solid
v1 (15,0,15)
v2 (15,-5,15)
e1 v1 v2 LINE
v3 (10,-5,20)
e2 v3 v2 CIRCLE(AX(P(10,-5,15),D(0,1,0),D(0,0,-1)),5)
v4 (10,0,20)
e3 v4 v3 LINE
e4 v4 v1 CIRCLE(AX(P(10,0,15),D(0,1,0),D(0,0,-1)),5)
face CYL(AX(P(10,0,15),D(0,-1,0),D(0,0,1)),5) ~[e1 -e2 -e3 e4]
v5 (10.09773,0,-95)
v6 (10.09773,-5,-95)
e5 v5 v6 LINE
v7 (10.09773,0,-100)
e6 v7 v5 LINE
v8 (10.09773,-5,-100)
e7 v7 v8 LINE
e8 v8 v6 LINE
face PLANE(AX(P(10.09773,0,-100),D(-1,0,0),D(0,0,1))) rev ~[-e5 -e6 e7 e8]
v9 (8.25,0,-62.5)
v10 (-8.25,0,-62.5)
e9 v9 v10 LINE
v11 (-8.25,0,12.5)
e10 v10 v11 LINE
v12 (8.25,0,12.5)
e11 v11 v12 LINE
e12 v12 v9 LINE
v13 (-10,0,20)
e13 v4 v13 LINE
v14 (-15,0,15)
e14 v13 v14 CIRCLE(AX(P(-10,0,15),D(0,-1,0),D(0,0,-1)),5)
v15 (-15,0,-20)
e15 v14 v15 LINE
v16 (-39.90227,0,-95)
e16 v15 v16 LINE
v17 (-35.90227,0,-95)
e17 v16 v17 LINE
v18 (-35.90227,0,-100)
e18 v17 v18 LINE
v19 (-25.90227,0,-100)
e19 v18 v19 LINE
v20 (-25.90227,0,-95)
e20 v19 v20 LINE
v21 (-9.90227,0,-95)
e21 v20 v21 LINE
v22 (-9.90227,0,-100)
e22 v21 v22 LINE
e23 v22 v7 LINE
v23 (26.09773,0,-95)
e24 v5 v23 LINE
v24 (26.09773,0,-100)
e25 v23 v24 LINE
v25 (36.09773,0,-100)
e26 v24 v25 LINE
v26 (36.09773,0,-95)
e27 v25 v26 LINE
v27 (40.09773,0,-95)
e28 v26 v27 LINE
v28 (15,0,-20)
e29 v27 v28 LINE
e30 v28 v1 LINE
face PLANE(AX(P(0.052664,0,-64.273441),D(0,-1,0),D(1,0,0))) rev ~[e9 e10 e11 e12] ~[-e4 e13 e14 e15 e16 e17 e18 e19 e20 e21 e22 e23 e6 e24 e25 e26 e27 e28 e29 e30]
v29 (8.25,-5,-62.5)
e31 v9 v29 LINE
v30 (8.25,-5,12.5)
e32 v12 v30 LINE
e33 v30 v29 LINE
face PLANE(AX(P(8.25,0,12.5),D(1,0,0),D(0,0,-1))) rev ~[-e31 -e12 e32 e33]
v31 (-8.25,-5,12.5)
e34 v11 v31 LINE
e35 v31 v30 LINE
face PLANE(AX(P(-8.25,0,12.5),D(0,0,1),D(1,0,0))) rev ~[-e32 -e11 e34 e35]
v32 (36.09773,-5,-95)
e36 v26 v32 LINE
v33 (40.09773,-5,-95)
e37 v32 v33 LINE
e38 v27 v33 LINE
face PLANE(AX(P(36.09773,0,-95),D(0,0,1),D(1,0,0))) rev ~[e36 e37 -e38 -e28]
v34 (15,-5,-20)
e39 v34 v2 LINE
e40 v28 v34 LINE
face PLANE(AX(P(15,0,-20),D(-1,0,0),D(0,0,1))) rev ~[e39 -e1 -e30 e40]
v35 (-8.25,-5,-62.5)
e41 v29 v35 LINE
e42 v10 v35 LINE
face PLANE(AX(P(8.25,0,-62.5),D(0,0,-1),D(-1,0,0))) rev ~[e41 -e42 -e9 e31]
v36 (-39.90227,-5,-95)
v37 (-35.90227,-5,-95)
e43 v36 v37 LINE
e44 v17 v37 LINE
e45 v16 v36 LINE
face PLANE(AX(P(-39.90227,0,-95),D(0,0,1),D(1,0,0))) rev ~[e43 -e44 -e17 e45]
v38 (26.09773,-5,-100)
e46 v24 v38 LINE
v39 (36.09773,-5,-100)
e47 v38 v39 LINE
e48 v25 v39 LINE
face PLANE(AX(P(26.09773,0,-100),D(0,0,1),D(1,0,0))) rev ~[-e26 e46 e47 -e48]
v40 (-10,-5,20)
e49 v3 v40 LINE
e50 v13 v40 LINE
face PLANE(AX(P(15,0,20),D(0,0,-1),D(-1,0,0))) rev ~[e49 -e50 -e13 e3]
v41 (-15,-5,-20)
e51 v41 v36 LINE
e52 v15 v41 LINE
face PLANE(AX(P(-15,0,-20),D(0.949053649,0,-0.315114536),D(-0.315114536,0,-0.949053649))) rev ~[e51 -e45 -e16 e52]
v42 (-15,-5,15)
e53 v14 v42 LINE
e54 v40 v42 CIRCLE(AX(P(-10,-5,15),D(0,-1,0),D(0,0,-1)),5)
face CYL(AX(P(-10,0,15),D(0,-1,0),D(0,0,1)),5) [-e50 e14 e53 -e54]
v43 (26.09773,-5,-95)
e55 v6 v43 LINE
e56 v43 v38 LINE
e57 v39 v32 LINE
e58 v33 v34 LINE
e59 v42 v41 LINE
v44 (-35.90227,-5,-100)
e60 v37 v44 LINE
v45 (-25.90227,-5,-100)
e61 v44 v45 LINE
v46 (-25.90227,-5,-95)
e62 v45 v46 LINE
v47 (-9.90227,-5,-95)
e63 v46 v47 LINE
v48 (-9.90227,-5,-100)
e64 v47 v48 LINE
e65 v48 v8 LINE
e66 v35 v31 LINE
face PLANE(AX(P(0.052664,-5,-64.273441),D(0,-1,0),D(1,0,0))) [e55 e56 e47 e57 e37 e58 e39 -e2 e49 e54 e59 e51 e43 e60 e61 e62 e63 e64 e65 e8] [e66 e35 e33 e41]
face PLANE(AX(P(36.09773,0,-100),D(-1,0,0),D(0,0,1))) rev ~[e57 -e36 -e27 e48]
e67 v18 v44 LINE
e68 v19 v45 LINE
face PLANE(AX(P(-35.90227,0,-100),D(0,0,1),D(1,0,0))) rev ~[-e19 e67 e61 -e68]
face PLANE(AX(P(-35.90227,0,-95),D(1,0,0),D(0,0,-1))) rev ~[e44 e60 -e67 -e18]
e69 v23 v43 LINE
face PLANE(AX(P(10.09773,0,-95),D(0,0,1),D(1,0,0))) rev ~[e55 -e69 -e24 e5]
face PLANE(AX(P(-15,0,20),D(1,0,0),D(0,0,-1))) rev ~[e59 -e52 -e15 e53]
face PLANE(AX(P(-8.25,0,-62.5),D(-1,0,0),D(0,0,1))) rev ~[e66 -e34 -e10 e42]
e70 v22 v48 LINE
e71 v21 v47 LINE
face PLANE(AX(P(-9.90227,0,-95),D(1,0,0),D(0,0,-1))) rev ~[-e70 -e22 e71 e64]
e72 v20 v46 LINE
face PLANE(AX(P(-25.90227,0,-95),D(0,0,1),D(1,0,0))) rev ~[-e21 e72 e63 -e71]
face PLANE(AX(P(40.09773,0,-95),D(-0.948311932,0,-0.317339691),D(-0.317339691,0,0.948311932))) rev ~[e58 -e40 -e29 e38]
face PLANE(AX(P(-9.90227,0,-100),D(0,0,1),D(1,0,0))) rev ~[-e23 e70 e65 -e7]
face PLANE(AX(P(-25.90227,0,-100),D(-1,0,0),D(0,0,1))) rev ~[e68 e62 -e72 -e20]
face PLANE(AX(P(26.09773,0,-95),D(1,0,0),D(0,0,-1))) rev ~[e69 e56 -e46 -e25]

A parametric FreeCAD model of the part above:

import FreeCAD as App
import Part
import Sketcher
Q = App.Units.Quantity


def edges_at(feature, points):
    """Names of the edges that pass closest to the given points."""
    edges = feature.Shape.Edges
    near = lambda p: min(range(len(edges)), key=lambda i: edges[i].distToShape(Part.Vertex(*p))[0])
    return sorted({f"Edge{near(p) + 1}" for p in points})


def add_polygon(sketch, points):
    """Adds a closed chain of lines whose ends are joined by coincident constraints."""
    first, n = sketch.GeometryCount, len(points)
    for a, b in zip(points, points[1:] + points[:1]):
        sketch.addGeometry(Part.LineSegment(App.Vector(*a, 0), App.Vector(*b, 0)), False)
    for i in range(n):
        sketch.addConstraint(Sketcher.Constraint("Coincident", first + i, 2, first + (i + 1) % n, 1))

doc = App.newDocument("Part")
body = doc.addObject("PartDesign::Body", "Body")

# Sketch on XZ plane
sketch1 = body.newObject("Sketcher::SketchObject", "Sketch")
sketch1.AttachmentSupport = (doc.getObject("XZ_Plane"), [""])
sketch1.MapMode = "FlatFace"
add_polygon(sketch1, [(40.09773, -95), (15, -20), (15, 20), (-15, 20), (-15, -20), (-39.90227, -95), (-35.90227, -95), (-35.90227, -100), (-25.90227, -100), (-25.90227, -95), (-9.90227, -95), (-9.90227, -100), (10.09773, -100), (10.09773, -95), (26.09773, -95), (26.09773, -100), (36.09773, -100), (36.09773, -95)])  # lines 0-17
add_polygon(sketch1, [(8.25, -62.5), (-8.25, -62.5), (-8.25, 12.5), (8.25, 12.5)])  # lines 18-21
sketch1.addConstraint([
    Sketcher.Constraint("Vertical", 1),
    Sketcher.Constraint("Horizontal", 2),
    Sketcher.Constraint("Vertical", 3),
    Sketcher.Constraint("Horizontal", 5),
    Sketcher.Constraint("Vertical", 6),
    Sketcher.Constraint("Horizontal", 7),
    Sketcher.Constraint("Vertical", 8),
    Sketcher.Constraint("Horizontal", 9),
    Sketcher.Constraint("Vertical", 10),
    Sketcher.Constraint("Horizontal", 11),
    Sketcher.Constraint("Vertical", 12),
    Sketcher.Constraint("Horizontal", 13),
    Sketcher.Constraint("Vertical", 14),
    Sketcher.Constraint("Horizontal", 15),
    Sketcher.Constraint("Vertical", 16),
    Sketcher.Constraint("Horizontal", 17),
    Sketcher.Constraint("Horizontal", 18),
    Sketcher.Constraint("Vertical", 19),
    Sketcher.Constraint("Horizontal", 20),
    Sketcher.Constraint("Vertical", 21),
    Sketcher.Constraint("Symmetric", 0, 2, 2, 2, -1, 1),
    Sketcher.Constraint("Horizontal", 0, 2, 3, 2),
    Sketcher.Constraint("Horizontal", 5, 2, 8, 2),
    Sketcher.Constraint("Horizontal", 7, 2, 10, 2),
    Sketcher.Constraint("Horizontal", 9, 2, 12, 2),
    Sketcher.Constraint("Horizontal", 11, 2, 14, 2),
    Sketcher.Constraint("Horizontal", 13, 2, 16, 2),
    Sketcher.Constraint("Equal", 9, 13),
    Sketcher.Constraint("Equal", 7, 15),
    Sketcher.Constraint("Equal", 5, 17),
    Sketcher.Constraint("DistanceX", 2, 2, 2, 1, Q("30 mm")),
    Sketcher.Constraint("DistanceX", 5, 1, 5, 2, Q("4 mm")),
    Sketcher.Constraint("DistanceX", 7, 1, 7, 2, Q("10 mm")),
    Sketcher.Constraint("DistanceX", 9, 1, 9, 2, Q("16 mm")),
    Sketcher.Constraint("DistanceX", 11, 1, 11, 2, Q("20 mm")),
    Sketcher.Constraint("DistanceY", 1, 1, 1, 2, Q("40 mm")),
    Sketcher.Constraint("DistanceY", 6, 2, 6, 1, Q("5 mm")),
    Sketcher.Constraint("DistanceY", 19, 1, 19, 2, Q("75 mm")),
    Sketcher.Constraint("DistanceX", 18, 2, 18, 1, Q("16.5 mm")),
    Sketcher.Constraint("DistanceY", 4, 2, -1, 1, Q("95 mm")),
    Sketcher.Constraint("DistanceY", 18, 2, -1, 1, Q("62.5 mm")),
    Sketcher.Constraint("DistanceX", 18, 2, -1, 1, Q("8.25 mm")),
    Sketcher.Constraint("Distance", 0, Q("79.087901 mm")),
])
pad1 = body.newObject("PartDesign::Pad", "Pad")
pad1.Profile = sketch1
pad1.Length = 5
doc.recompute()

fillet = body.newObject("PartDesign::Fillet", "Fillet")
fillet.Base = (pad1, edges_at(pad1, [(-15, -2.5, 20)]))
fillet.Radius = 5
doc.recompute()

fillet2 = body.newObject("PartDesign::Fillet", "Fillet001")
fillet2.Base = (fillet, edges_at(fillet, [(15, -2.5, 20)]))
fillet2.Radius = 5

doc.recompute()
